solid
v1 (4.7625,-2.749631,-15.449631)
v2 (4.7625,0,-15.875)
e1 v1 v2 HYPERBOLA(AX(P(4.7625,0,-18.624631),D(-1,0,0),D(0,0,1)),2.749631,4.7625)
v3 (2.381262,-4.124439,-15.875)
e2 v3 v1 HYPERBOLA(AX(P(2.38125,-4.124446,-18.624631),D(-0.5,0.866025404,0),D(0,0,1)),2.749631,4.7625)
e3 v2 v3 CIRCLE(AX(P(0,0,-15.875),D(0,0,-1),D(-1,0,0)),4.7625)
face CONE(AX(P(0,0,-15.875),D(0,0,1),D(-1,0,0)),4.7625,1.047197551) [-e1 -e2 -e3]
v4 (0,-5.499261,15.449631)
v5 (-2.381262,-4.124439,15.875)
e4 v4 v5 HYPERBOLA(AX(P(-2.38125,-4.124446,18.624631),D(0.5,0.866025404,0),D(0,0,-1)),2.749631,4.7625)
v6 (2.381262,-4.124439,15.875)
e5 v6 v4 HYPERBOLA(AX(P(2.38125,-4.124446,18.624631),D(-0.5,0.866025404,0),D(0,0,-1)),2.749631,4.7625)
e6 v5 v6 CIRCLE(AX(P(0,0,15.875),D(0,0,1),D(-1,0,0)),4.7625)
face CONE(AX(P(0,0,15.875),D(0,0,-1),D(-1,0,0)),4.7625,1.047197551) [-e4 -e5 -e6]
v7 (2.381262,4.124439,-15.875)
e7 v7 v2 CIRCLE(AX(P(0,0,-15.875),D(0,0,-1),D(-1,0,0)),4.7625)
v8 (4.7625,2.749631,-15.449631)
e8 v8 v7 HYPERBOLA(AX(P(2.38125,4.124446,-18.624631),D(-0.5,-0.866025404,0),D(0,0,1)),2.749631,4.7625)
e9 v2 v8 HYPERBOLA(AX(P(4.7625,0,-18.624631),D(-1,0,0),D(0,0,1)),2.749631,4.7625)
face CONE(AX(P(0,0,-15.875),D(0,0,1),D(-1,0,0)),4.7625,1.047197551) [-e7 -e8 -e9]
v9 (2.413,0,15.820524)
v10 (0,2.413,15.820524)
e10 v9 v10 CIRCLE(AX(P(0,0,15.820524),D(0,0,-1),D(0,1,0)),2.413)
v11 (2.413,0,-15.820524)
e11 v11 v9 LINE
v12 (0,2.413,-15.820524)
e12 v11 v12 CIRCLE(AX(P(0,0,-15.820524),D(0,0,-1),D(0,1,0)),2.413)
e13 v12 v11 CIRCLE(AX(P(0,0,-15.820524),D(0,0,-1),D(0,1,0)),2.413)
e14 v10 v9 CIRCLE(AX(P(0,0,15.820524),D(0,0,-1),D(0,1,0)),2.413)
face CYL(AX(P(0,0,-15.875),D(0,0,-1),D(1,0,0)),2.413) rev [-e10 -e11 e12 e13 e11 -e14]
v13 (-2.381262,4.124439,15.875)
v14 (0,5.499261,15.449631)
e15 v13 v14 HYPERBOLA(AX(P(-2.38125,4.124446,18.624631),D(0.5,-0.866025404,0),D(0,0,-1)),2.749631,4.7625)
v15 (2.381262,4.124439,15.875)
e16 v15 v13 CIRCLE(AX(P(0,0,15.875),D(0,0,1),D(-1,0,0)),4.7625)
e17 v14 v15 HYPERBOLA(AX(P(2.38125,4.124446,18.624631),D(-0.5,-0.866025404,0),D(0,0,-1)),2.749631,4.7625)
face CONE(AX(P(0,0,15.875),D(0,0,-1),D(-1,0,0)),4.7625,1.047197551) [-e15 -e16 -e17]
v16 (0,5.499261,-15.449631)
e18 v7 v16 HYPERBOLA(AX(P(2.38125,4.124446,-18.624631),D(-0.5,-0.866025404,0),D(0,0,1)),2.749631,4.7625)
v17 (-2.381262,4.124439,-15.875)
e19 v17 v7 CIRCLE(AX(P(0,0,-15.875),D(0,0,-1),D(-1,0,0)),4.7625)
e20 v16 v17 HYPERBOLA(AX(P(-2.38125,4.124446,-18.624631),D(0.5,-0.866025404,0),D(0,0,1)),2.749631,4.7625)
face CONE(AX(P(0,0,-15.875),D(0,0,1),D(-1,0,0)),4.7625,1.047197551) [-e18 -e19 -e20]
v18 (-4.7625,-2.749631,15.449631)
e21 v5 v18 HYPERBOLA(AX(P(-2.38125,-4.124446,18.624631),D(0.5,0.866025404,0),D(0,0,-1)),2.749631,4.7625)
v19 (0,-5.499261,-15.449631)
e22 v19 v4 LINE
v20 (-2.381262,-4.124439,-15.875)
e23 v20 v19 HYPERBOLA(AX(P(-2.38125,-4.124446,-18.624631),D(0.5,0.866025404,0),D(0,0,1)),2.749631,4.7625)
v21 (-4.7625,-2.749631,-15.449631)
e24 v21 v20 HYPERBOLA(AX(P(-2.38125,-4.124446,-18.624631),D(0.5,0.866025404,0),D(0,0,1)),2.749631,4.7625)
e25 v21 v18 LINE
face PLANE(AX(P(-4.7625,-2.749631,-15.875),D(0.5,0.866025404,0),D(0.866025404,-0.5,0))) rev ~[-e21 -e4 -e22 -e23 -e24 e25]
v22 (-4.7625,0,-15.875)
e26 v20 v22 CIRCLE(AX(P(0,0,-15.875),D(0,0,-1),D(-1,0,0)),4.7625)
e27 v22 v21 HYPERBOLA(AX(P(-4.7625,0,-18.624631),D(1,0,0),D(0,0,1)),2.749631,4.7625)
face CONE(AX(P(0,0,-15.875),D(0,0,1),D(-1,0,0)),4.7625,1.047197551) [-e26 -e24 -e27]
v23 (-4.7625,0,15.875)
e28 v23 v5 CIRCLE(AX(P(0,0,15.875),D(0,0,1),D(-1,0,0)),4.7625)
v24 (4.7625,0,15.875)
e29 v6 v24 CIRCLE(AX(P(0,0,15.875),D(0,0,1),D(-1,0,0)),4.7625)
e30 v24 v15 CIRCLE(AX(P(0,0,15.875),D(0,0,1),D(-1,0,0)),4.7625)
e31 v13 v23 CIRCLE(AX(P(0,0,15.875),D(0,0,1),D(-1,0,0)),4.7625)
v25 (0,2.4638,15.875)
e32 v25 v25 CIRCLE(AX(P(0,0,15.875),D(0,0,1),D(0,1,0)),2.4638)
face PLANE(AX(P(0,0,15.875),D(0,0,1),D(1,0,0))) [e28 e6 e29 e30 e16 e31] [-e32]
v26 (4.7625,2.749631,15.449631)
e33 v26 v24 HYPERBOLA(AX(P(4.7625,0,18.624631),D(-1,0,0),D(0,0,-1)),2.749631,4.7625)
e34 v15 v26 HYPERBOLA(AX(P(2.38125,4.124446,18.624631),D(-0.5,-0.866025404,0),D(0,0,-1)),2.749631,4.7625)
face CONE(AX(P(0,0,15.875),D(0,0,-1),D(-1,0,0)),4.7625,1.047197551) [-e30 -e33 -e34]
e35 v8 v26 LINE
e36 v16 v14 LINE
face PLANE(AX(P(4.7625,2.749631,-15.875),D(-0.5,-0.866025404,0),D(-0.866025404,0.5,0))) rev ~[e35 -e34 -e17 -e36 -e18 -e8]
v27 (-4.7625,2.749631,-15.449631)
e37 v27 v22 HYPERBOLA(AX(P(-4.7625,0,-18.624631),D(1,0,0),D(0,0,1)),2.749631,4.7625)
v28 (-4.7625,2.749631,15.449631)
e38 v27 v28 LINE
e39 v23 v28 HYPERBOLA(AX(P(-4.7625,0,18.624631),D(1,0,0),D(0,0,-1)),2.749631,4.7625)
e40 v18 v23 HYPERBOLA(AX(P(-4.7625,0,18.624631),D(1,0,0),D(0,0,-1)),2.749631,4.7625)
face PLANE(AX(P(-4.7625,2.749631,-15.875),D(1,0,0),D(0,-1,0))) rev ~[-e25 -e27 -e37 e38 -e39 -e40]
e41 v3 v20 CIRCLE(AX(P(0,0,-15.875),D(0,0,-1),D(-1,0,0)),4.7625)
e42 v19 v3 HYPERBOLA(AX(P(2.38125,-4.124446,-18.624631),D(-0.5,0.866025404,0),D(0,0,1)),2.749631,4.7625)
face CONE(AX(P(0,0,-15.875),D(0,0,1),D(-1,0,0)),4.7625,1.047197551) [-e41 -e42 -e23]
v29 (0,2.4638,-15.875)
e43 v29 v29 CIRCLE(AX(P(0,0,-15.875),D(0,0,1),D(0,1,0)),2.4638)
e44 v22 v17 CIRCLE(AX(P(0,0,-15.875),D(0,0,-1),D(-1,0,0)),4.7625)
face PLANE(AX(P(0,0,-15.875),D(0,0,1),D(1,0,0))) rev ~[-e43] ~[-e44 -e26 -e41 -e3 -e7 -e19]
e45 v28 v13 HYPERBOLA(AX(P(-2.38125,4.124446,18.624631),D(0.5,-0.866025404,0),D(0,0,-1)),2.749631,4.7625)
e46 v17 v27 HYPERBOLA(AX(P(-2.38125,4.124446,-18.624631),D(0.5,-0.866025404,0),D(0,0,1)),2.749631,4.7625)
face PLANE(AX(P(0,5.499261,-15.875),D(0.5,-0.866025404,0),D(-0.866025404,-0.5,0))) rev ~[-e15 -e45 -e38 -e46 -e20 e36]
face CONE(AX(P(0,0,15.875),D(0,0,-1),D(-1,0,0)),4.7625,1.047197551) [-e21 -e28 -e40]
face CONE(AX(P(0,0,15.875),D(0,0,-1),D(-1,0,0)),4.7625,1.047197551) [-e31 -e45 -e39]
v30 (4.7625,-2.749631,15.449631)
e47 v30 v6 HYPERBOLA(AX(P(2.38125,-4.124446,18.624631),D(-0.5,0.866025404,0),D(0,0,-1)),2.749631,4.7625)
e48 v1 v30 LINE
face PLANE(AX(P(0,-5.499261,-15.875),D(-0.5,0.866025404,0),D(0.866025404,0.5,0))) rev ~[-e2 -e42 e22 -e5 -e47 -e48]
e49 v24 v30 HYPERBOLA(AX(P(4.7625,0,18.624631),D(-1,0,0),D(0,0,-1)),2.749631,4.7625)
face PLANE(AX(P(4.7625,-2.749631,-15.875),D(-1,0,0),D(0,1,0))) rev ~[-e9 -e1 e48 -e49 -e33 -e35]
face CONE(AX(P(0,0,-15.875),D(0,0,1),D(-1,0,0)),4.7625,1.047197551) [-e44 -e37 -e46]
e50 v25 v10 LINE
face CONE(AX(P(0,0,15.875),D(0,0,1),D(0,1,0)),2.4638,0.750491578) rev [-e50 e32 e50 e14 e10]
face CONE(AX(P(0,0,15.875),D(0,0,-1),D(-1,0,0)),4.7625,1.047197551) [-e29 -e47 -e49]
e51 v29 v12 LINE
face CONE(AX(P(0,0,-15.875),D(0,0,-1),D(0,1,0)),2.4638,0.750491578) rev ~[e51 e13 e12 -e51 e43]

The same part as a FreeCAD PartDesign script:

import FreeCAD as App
import Part
import Sketcher
from FreeCAD import Vector
Q = App.Units.Quantity


def faces_at(feature, points):
    """Names of the faces that lie closest to the given points."""
    faces = feature.Shape.Faces
    near = lambda p: min(range(len(faces)), key=lambda i: faces[i].distToShape(Part.Vertex(*p))[0])
    return sorted({f"Face{near(p) + 1}" for p in points})

doc = App.newDocument("Part")
params = doc.addObject("Spreadsheet::Sheet", "Params")
for row, (alias, value) in enumerate([
    ("sketch1_diameter", "0.19 in"),
    ("pad1_length", "0.625 in"),
    ("pad1_length2", "0.625 in"),
    ("sketch2_width", "0.097 in"),
    ("groove_angle", "360 deg"),
    ("sketch3_diameter", "0.375 in"),
    ("pad2_length", "33.572777 mm"),
    ("draft_angle", "60 deg"),
    ("sketch4_diameter", "0.375 in"),
    ("pad3_length", "33.572777 mm"),
    ("draft2_angle", "60 deg"),
], start=1):
    params.set(f"A{row}", alias)
    params.set(f"B{row}", "=" + value)
    params.setAlias(f"B{row}", alias)

body = doc.addObject("PartDesign::Body", "Body")

# Sketch on XY plane
sketch1 = doc.addObject("Sketcher::SketchObject", "Sketch")
body.addObject(sketch1)
sketch1.AttachmentSupport = (doc.XY_Plane, [""])
sketch1.MapMode = "FlatFace"
sketch1.addGeometry([
    Part.LineSegment(Vector(0, 5.5, 0), Vector(-4.8, 2.7, 0)),  # 0
    Part.LineSegment(Vector(-4.8, 2.7, 0), Vector(-4.8, -2.7, 0)),  # 1
    Part.LineSegment(Vector(-4.8, -2.7, 0), Vector(0, -5.5, 0)),  # 2
    Part.LineSegment(Vector(0, -5.5, 0), Vector(4.8, -2.7, 0)),  # 3
    Part.LineSegment(Vector(4.8, -2.7, 0), Vector(4.8, 2.7, 0)),  # 4
    Part.LineSegment(Vector(4.8, 2.7, 0), Vector(0, 5.5, 0)),  # 5
    Part.Circle(Vector(0, 0, 0), Vector(0, 0, 1), 2.4),  # 6
], False)
sketch1.addConstraint([
    Sketcher.Constraint("Coincident", 0, 2, 1, 1),
    Sketcher.Constraint("Coincident", 1, 2, 2, 1),
    Sketcher.Constraint("Coincident", 2, 2, 3, 1),
    Sketcher.Constraint("Coincident", 3, 2, 4, 1),
    Sketcher.Constraint("Coincident", 4, 2, 5, 1),
    Sketcher.Constraint("Coincident", 5, 2, 0, 1),
    Sketcher.Constraint("Vertical", 1),
    Sketcher.Constraint("Vertical", 4),
    Sketcher.Constraint("Coincident", 6, 3, -1, 1),
    Sketcher.Constraint("Symmetric", 0, 2, 3, 2, -1, 1),
    Sketcher.Constraint("Symmetric", 2, 2, 5, 2, -1, 1),
    Sketcher.Constraint("PointOnObject", 2, 2, -2),
    Sketcher.Constraint("Parallel", 2, 5),
    Sketcher.Constraint("Horizontal", 1, 2, 3, 2),
    Sketcher.Constraint("Diameter", 6, Q("0.19 in")),
    Sketcher.Constraint("Angle", 0, Q("-150 deg")),
    Sketcher.Constraint("DistanceX", 0, 2, -1, 1, Q("0.1875 in")),
    Sketcher.Constraint("DistanceY", 1, 2, 1, 1, Q("5.499261 mm")),
])
sketch1.setExpression("Constraints[14]", "Params.sketch1_diameter")
pad1 = doc.addObject("PartDesign::Pad", "Pad")
body.addObject(pad1)
pad1.Profile = sketch1
pad1.Type = "TwoLengths"
pad1.setExpression("Length", "Params.pad1_length")
pad1.setExpression("Length2", "Params.pad1_length2")

# Sketch on YZ plane
sketch2 = doc.addObject("Sketcher::SketchObject", "Sketch001")
body.addObject(sketch2)
sketch2.AttachmentSupport = (doc.YZ_Plane, [""])
sketch2.MapMode = "FlatFace"
sketch2.addGeometry([
    Part.LineSegment(Vector(0, -15.9, 0), Vector(2.5, -15.9, 0)),
    Part.LineSegment(Vector(2.5, -15.9, 0), Vector(0, -13.2, 0)),
    Part.LineSegment(Vector(0, -13.2, 0), Vector(0, -15.9, 0)),
], False)
sketch2.addConstraint([
    Sketcher.Constraint("Coincident", 0, 2, 1, 1),
    Sketcher.Constraint("Coincident", 1, 2, 2, 1),
    Sketcher.Constraint("Coincident", 2, 2, 0, 1),
    Sketcher.Constraint("Horizontal", 0),
    Sketcher.Constraint("Vertical", 2),
    Sketcher.Constraint("PointOnObject", 1, 2, -2),
    Sketcher.Constraint("Angle", 1, Q("133 deg")),
    Sketcher.Constraint("DistanceX", 0, 1, 0, 2, Q("0.097 in")),
    Sketcher.Constraint("DistanceY", 0, 2, -1, 1, Q("0.625 in")),
])
sketch2.setExpression("Constraints[7]", "Params.sketch2_width")
groove = doc.addObject("PartDesign::Groove", "Groove")
body.addObject(groove)
groove.Profile = sketch2
groove.ReferenceAxis = (sketch2, ["V_Axis"])
groove.setExpression("Angle", "Params.groove_angle")
body2 = doc.addObject("PartDesign::Body", "Body001")

# Sketch on XY plane
sketch3 = doc.addObject("Sketcher::SketchObject", "Sketch002")
body2.addObject(sketch3)
sketch3.AttachmentSupport = (doc.getObject("XY_Plane001"), [""])
sketch3.MapMode = "FlatFace"
sketch3.AttachmentOffset = App.Placement(Vector(0, 0, -0.625 * 25.4), App.Rotation())
sketch3.addGeometry([
    Part.LineSegment(Vector(67.4, 68.1, 0), Vector(67.4, -68.1, 0)),  # 0
    Part.LineSegment(Vector(67.4, -68.1, 0), Vector(-67.4, -68.1, 0)),  # 1
    Part.LineSegment(Vector(-67.4, -68.1, 0), Vector(-67.4, 68.1, 0)),  # 2
    Part.LineSegment(Vector(-67.4, 68.1, 0), Vector(67.4, 68.1, 0)),  # 3
    Part.Circle(Vector(0, 0, 0), Vector(0, 0, 1), 4.8),  # 4
], False)
sketch3.addConstraint([
    Sketcher.Constraint("Coincident", 0, 2, 1, 1),
    Sketcher.Constraint("Coincident", 1, 2, 2, 1),
    Sketcher.Constraint("Coincident", 2, 2, 3, 1),
    Sketcher.Constraint("Coincident", 3, 2, 0, 1),
    Sketcher.Constraint("Vertical", 0),
    Sketcher.Constraint("Horizontal", 1),
    Sketcher.Constraint("Vertical", 2),
    Sketcher.Constraint("Horizontal", 3),
    Sketcher.Constraint("Coincident", 4, 3, -1, 1),
    Sketcher.Constraint("Symmetric", 0, 2, 2, 2, -1, 1),
    Sketcher.Constraint("Diameter", 4, Q("0.375 in")),
    Sketcher.Constraint("DistanceX", 1, 2, 1, 1, Q("134.808 mm")),
    Sketcher.Constraint("DistanceY", 0, 2, 0, 1, Q("136.282 mm")),
])
sketch3.setExpression("Constraints[10]", "Params.sketch3_diameter")
pad2 = doc.addObject("PartDesign::Pad", "Pad001")
body2.addObject(pad2)
pad2.Profile = sketch3
pad2.setExpression("Length", "Params.pad2_length")
doc.recompute()

datumplane = doc.addObject("PartDesign::Plane", "DatumPlane")
body2.addObject(datumplane)
datumplane.AttachmentSupport = (doc.getObject("XY_Plane001"), [""])
datumplane.MapMode = "FlatFace"
datumplane.AttachmentOffset = App.Placement(Vector(0, 0, -0.625 * 25.4), App.Rotation())
draft = doc.addObject("PartDesign::Draft", "Draft")
body2.addObject(draft)
draft.Base = (pad2, faces_at(pad2, [
    (0, -68.141, 0.911),
    (-67.404, 0, 0.911),
    (0, 68.141, 0.911),
    (67.404, 0, 0.911),
    (4.763, 0, 0.911),
]))
draft.NeutralPlane = (datumplane, [""])
draft.setExpression("Angle", "Params.draft_angle")
draft.Reversed = False
doc.recompute()

boolean = doc.addObject("PartDesign::Boolean", "Boolean")
body.addObject(boolean)
boolean.Type = "Cut"
boolean.addObjects([body2])
doc.recompute()

mirrored = doc.addObject("PartDesign::Mirrored", "Mirrored")
body.addObject(mirrored)
mirrored.Originals = [groove]
mirrored.MirrorPlane = (doc.XY_Plane, [""])
body.Tip = mirrored
body3 = doc.addObject("PartDesign::Body", "Body002")

# Sketch on XY plane
sketch4 = doc.addObject("Sketcher::SketchObject", "Sketch003")
body3.addObject(sketch4)
sketch4.AttachmentSupport = (doc.getObject("XY_Plane002"), [""])
sketch4.MapMode = "FlatFace"
sketch4.AttachmentOffset = App.Placement(Vector(0, 0, 0.625 * 25.4), App.Rotation())
sketch4.addGeometry([
    Part.LineSegment(Vector(67.4, -68.1, 0), Vector(67.4, 68.1, 0)),  # 0
    Part.LineSegment(Vector(67.4, 68.1, 0), Vector(-67.4, 68.1, 0)),  # 1
    Part.LineSegment(Vector(-67.4, 68.1, 0), Vector(-67.4, -68.1, 0)),  # 2
    Part.LineSegment(Vector(-67.4, -68.1, 0), Vector(67.4, -68.1, 0)),  # 3
    Part.Circle(Vector(0, 0, 0), Vector(0, 0, 1), 4.8),  # 4
], False)
sketch4.addConstraint([
    Sketcher.Constraint("Coincident", 0, 2, 1, 1),
    Sketcher.Constraint("Coincident", 1, 2, 2, 1),
    Sketcher.Constraint("Coincident", 2, 2, 3, 1),
    Sketcher.Constraint("Coincident", 3, 2, 0, 1),
    Sketcher.Constraint("Vertical", 0),
    Sketcher.Constraint("Horizontal", 1),
    Sketcher.Constraint("Vertical", 2),
    Sketcher.Constraint("Horizontal", 3),
    Sketcher.Constraint("Coincident", 4, 3, -1, 1),
    Sketcher.Constraint("Symmetric", 0, 2, 2, 2, -1, 1),
    Sketcher.Constraint("Diameter", 4, Q("0.375 in")),
    Sketcher.Constraint("DistanceX", 1, 2, 1, 1, Q("134.808 mm")),
    Sketcher.Constraint("DistanceY", 0, 1, 0, 2, Q("136.282 mm")),
])
sketch4.setExpression("Constraints[10]", "Params.sketch4_diameter")
pad3 = doc.addObject("PartDesign::Pad", "Pad002")
body3.addObject(pad3)
pad3.Profile = sketch4
pad3.setExpression("Length", "Params.pad3_length")
pad3.Reversed = True
doc.recompute()

datumplane2 = doc.addObject("PartDesign::Plane", "DatumPlane001")
body3.addObject(datumplane2)
datumplane2.AttachmentSupport = (doc.getObject("XY_Plane002"), [""])
datumplane2.MapMode = "FlatFace"
datumplane2.AttachmentOffset = App.Placement(Vector(0, 0, 0.625 * 25.4), App.Rotation())
draft2 = doc.addObject("PartDesign::Draft", "Draft001")
body3.addObject(draft2)
draft2.Base = (pad3, faces_at(pad3, [
    (0, -68.141, -0.911),
    (-67.404, 0, -0.911),
    (0, 68.141, -0.911),
    (67.404, 0, -0.911),
    (4.763, 0, -0.911),
]))
draft2.NeutralPlane = (datumplane2, [""])
draft2.setExpression("Angle", "Params.draft2_angle")
draft2.Reversed = True
doc.recompute()

boolean2 = doc.addObject("PartDesign::Boolean", "Boolean001")
body.addObject(boolean2)
boolean2.Type = "Cut"
boolean2.addObjects([body3])

doc.recompute()
